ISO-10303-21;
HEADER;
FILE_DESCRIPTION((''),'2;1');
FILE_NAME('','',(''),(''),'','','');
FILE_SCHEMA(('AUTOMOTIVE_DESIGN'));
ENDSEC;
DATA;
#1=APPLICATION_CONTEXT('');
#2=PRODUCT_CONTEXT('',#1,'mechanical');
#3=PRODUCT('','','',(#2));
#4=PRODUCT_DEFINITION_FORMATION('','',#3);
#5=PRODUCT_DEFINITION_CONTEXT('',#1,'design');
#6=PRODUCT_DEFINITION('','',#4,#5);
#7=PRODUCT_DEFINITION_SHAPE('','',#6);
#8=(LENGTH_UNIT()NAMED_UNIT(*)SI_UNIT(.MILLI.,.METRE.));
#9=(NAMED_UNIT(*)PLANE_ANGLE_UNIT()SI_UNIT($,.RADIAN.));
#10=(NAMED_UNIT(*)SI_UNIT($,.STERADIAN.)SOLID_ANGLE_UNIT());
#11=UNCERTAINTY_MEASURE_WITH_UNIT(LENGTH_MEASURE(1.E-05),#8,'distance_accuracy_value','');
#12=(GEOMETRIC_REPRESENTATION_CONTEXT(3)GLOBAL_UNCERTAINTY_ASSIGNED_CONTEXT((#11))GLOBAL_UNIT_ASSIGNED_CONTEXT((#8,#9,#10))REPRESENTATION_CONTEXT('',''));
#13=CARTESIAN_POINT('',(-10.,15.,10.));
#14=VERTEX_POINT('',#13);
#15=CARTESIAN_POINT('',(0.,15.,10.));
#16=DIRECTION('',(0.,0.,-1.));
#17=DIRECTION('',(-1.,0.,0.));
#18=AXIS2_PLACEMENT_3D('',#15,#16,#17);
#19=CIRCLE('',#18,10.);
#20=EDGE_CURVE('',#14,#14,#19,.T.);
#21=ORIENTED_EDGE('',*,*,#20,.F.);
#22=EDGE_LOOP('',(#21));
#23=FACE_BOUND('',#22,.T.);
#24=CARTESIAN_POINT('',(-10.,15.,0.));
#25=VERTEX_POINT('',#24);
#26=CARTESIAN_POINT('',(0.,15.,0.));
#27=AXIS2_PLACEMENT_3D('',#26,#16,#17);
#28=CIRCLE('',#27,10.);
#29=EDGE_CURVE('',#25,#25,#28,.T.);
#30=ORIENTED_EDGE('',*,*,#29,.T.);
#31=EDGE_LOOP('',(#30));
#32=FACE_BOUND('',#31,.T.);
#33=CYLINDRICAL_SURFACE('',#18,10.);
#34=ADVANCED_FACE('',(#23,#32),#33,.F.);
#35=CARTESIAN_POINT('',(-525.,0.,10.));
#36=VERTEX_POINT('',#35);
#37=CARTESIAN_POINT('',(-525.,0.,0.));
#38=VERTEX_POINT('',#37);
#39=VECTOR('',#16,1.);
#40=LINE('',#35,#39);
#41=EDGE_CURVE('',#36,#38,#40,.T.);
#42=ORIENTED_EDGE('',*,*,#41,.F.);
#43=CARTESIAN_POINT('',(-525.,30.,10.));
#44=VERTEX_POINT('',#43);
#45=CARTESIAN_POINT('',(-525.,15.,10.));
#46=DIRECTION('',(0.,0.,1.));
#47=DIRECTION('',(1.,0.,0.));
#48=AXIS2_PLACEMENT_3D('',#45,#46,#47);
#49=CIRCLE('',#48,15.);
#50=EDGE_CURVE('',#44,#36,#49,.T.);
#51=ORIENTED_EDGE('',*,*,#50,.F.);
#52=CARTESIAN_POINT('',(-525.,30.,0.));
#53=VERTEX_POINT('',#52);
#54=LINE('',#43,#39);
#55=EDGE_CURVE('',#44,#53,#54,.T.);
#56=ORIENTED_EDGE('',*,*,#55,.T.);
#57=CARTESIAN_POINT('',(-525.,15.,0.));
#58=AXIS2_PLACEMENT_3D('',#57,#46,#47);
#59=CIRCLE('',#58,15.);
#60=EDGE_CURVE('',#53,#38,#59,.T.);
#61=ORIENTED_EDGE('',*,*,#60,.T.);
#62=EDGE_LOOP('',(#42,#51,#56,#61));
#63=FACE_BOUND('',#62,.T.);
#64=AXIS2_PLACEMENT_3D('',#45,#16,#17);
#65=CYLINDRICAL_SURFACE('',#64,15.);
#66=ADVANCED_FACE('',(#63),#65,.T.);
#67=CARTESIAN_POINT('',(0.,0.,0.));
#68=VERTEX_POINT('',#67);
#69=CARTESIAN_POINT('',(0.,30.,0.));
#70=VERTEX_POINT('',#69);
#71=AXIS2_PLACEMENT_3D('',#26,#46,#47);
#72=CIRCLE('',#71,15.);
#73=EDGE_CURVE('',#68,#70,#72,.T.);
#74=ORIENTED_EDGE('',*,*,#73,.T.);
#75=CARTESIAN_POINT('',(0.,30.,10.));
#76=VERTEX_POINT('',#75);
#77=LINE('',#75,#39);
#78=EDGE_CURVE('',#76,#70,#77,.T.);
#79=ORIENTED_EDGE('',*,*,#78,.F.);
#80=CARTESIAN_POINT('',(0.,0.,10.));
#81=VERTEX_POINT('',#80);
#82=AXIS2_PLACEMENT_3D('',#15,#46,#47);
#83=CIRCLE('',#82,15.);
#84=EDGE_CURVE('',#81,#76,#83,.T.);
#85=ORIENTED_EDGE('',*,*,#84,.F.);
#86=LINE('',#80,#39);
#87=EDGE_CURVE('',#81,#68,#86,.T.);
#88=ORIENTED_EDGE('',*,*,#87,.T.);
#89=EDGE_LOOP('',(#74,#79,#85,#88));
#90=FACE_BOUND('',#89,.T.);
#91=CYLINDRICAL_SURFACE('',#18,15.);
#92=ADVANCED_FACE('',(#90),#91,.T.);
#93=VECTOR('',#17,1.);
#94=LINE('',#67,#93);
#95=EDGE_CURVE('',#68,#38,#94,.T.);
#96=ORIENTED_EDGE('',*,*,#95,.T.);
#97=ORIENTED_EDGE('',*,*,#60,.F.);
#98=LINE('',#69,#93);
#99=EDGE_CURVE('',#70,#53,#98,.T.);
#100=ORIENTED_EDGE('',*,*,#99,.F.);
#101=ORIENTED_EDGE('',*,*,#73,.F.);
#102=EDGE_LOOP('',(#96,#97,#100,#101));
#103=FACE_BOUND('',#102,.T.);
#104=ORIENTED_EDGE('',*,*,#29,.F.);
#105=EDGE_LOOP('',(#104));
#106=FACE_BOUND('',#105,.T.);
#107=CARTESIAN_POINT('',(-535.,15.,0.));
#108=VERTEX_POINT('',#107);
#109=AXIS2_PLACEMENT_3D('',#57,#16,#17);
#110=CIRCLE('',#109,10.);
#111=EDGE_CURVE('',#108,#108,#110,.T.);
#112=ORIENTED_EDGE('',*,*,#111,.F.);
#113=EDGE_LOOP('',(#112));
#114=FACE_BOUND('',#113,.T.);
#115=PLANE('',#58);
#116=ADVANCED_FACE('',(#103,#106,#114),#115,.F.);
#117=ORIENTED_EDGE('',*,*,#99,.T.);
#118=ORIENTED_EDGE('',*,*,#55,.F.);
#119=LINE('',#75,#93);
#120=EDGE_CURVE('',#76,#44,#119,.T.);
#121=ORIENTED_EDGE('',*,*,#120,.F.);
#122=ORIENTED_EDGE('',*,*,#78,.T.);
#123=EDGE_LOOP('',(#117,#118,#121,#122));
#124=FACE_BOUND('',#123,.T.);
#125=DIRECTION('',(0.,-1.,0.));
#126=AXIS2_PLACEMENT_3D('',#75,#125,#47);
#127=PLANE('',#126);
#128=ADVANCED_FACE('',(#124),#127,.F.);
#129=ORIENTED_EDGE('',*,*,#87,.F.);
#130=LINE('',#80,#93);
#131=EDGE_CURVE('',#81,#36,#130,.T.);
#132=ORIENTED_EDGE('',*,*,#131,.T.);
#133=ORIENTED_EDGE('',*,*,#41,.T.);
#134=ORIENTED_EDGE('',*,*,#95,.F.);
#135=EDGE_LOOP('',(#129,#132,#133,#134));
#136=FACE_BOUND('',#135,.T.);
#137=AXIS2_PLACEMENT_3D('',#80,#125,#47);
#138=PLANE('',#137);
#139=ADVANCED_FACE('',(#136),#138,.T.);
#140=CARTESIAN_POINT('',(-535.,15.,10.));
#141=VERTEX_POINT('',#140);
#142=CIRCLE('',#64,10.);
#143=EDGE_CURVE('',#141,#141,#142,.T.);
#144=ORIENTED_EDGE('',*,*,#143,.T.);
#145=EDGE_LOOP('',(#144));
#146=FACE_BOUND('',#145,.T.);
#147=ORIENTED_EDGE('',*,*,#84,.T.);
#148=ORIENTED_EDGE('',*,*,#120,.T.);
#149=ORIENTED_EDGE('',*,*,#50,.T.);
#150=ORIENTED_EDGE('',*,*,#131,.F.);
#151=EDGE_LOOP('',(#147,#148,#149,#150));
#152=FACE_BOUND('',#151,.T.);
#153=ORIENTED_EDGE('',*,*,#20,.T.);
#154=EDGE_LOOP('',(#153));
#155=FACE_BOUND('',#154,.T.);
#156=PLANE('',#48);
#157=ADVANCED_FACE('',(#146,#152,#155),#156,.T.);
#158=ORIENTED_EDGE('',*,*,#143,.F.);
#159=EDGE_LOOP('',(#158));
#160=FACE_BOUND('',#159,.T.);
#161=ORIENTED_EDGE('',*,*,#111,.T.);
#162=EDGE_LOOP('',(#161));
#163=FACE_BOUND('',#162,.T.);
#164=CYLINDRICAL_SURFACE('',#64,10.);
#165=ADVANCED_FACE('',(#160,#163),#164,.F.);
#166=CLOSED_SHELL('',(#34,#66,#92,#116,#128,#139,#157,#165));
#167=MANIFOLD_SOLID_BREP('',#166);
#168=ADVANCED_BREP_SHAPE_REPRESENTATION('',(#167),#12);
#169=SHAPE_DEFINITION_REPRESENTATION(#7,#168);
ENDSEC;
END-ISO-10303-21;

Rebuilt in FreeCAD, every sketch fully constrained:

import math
import FreeCAD as App
import Part
import Sketcher

V = App.Vector
Q = App.Units.Quantity

doc = App.newDocument("Part")
body = doc.addObject("PartDesign::Body", "Body")

sketch1 = body.newObject("Sketcher::SketchObject", "Sketch")
sketch1.AttachmentSupport = (doc.getObject("XY_Plane"), [""])
sketch1.MapMode = "FlatFace"
sketch1.addGeometry([
    Part.LineSegment(V(-525, 0, 0), V(0, 0, 0)),
    Part.ArcOfCircle(Part.Circle(V(0, 15, 0), V(0, 0, 1), 15), math.radians(-90), math.radians(90)),
    Part.LineSegment(V(0, 30, 0), V(-525, 30, 0)),
    Part.ArcOfCircle(Part.Circle(V(-525, 15, 0), V(0, 0, 1), 15), math.radians(90), math.radians(270)),
], False)
sketch1.addConstraint([
    Sketcher.Constraint("Tangent", 0, 2, 1, 1),
    Sketcher.Constraint("Tangent", 1, 2, 2, 1),
    Sketcher.Constraint("Tangent", 2, 2, 3, 1),
    Sketcher.Constraint("Tangent", 3, 2, 0, 1),
    Sketcher.Constraint("Horizontal", 0),
    Sketcher.Constraint("Horizontal", 2),
    Sketcher.Constraint("Coincident", 0, 2, -1, 1),
    Sketcher.Constraint("Radius", 1, Q("15 mm")),
    Sketcher.Constraint("DistanceX", 0, 1, 0, 2, Q("525 mm")),
])
pad1 = body.newObject("PartDesign::Pad", "Pad")
pad1.Profile = sketch1
pad1.Length = 10

sketch2 = body.newObject("Sketcher::SketchObject", "Sketch001")
sketch2.AttachmentSupport = (doc.getObject("XY_Plane"), [""])
sketch2.MapMode = "FlatFace"
sketch2.addGeometry([
    Part.Circle(V(0, 15, 0), V(0, 0, 1), 10),
    Part.Circle(V(-525, 15, 0), V(0, 0, 1), 10),
], False)
sketch2.addConstraint([
    Sketcher.Constraint("Equal", 0, 1),
    Sketcher.Constraint("PointOnObject", 0, 3, -2),
    Sketcher.Constraint("Horizontal", 0, 3, 1, 3),
    Sketcher.Constraint("Diameter", 0, Q("20 mm")),
    Sketcher.Constraint("DistanceY", -1, 1, 0, 3, Q("15 mm")),
    Sketcher.Constraint("DistanceX", 1, 3, -1, 1, Q("525 mm")),
])
pocket1 = body.newObject("PartDesign::Pocket", "Pocket")
pocket1.Profile = sketch2
pocket1.Length = 10
pocket1.Reversed = True

doc.recompute()
